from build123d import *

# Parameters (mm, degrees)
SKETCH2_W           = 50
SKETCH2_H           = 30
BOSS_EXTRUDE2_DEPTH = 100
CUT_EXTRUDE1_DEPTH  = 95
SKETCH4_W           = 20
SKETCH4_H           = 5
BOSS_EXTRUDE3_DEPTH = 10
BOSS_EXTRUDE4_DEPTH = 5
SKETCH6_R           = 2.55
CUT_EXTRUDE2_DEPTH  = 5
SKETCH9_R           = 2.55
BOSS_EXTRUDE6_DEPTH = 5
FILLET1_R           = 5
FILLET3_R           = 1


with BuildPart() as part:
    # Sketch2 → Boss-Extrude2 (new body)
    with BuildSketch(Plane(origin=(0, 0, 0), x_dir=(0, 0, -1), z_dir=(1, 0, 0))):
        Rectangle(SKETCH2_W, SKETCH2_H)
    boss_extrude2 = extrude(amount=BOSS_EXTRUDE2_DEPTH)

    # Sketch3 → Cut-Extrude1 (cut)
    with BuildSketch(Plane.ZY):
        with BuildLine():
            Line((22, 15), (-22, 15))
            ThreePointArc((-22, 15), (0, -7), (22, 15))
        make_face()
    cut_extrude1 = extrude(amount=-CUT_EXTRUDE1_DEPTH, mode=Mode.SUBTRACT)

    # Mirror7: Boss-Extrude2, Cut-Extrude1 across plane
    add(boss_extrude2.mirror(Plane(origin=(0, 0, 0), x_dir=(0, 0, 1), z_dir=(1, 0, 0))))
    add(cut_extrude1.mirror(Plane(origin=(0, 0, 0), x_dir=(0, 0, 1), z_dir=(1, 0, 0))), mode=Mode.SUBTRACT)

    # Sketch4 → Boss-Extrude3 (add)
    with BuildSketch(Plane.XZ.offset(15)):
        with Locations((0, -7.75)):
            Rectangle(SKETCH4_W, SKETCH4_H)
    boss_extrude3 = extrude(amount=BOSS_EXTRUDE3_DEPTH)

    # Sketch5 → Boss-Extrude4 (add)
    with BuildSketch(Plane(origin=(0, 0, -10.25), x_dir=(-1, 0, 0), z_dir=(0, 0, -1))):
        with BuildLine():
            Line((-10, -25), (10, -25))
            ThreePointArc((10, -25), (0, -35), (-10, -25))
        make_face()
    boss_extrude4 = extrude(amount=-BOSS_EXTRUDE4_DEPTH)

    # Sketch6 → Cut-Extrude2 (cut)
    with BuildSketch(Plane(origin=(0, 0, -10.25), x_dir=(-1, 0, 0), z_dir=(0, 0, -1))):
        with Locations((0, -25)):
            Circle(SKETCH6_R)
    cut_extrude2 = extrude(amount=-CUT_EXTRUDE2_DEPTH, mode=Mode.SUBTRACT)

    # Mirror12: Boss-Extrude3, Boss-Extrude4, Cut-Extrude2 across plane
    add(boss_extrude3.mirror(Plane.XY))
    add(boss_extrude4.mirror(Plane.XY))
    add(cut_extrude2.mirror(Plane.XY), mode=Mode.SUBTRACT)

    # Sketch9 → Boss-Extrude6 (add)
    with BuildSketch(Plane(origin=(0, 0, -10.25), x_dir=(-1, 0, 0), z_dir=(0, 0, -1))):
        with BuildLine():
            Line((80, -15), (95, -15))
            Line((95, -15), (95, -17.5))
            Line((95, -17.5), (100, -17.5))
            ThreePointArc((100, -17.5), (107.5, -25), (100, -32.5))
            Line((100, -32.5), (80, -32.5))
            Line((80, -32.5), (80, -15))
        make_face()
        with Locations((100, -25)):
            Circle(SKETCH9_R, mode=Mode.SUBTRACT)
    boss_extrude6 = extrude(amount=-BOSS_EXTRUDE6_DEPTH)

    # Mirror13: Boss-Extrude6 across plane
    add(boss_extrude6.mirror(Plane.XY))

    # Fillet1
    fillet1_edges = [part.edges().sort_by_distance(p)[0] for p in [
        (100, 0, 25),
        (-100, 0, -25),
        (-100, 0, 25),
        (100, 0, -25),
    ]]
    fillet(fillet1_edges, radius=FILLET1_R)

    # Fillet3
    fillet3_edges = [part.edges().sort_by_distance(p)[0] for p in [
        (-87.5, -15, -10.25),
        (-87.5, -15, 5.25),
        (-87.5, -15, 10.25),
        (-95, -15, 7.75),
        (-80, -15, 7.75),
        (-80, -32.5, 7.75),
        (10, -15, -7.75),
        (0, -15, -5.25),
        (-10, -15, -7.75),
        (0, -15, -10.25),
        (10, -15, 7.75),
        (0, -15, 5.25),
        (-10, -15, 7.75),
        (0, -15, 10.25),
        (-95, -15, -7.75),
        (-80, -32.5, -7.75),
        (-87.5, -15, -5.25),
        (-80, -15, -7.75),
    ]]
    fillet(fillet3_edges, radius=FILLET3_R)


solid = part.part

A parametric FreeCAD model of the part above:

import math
import FreeCAD as App
import Part
import Sketcher
Q = App.Units.Quantity


def edges_at(feature, points):
    """Names of the edges that pass closest to the given points."""
    edges = feature.Shape.Edges
    near = lambda p: min(range(len(edges)), key=lambda i: edges[i].distToShape(Part.Vertex(*p))[0])
    return sorted({f"Edge{near(p) + 1}" for p in points})


def add_polygon(sketch, points):
    """Adds a closed chain of lines whose ends are joined by coincident constraints."""
    first, n = sketch.GeometryCount, len(points)
    for a, b in zip(points, points[1:] + points[:1]):
        sketch.addGeometry(Part.LineSegment(App.Vector(*a, 0), App.Vector(*b, 0)), False)
    for i in range(n):
        sketch.addConstraint(Sketcher.Constraint("Coincident", first + i, 2, first + (i + 1) % n, 1))

doc = App.newDocument("Part")
body = doc.addObject("PartDesign::Body", "Body")

# Sketch on YZ plane
sketch1 = doc.addObject("Sketcher::SketchObject", "Sketch")
body.addObject(sketch1)
sketch1.AttachmentSupport = (doc.YZ_Plane, [""])
sketch1.MapMode = "FlatFace"
add_polygon(sketch1, [(15, 25), (-15, 25), (-15, -25), (15, -25)])  # lines 0-3
sketch1.addConstraint([
    Sketcher.Constraint("Horizontal", 0),
    Sketcher.Constraint("Vertical", 1),
    Sketcher.Constraint("Horizontal", 2),
    Sketcher.Constraint("Vertical", 3),
    Sketcher.Constraint("Symmetric", 0, 2, 2, 2, -1, 1),
    Sketcher.Constraint("DistanceX", 0, 2, 0, 1, Q("30 mm")),
    Sketcher.Constraint("DistanceY", 1, 2, 1, 1, Q("50 mm")),
])
pad1 = doc.addObject("PartDesign::Pad", "Pad")
body.addObject(pad1)
pad1.Profile = sketch1
pad1.Length = 100

# Sketch on YZ plane
sketch2 = doc.addObject("Sketcher::SketchObject", "Sketch001")
body.addObject(sketch2)
sketch2.AttachmentSupport = (doc.YZ_Plane, [""])
sketch2.MapMode = "FlatFace"
sketch2.addGeometry([
    Part.LineSegment(App.Vector(15, 22, 0), App.Vector(15, -22, 0)),
    Part.ArcOfCircle(Part.Circle(App.Vector(15, 0, 0), App.Vector(0, 0, 1), 22), math.radians(90), math.radians(270)),
], False)
sketch2.addConstraint([
    Sketcher.Constraint("Coincident", 0, 1, 1, 1),
    Sketcher.Constraint("Coincident", 1, 2, 0, 2),
    Sketcher.Constraint("Vertical", 0),
    Sketcher.Constraint("PointOnObject", 1, 3, -1),
    Sketcher.Constraint("Vertical", 1, 3, 0, 1),
    Sketcher.Constraint("Radius", 1, Q("22 mm")),
    Sketcher.Constraint("DistanceX", -1, 1, 1, 3, Q("15 mm")),
])
pocket1 = doc.addObject("PartDesign::Pocket", "Pocket")
body.addObject(pocket1)
pocket1.Profile = sketch2
pocket1.Length = 95
pocket1.Reversed = True
doc.recompute()

mirrored = doc.addObject("PartDesign::Mirrored", "Mirrored")
body.addObject(mirrored)
mirrored.Originals = [pad1, pocket1]
mirrored.MirrorPlane = (doc.YZ_Plane, [""])
body.Tip = mirrored

# Sketch on XZ plane
sketch3 = doc.addObject("Sketcher::SketchObject", "Sketch002")
body.addObject(sketch3)
sketch3.AttachmentSupport = (doc.XZ_Plane, [""])
sketch3.MapMode = "FlatFace"
sketch3.AttachmentOffset = App.Placement(App.Vector(0, 0, 15), App.Rotation())
add_polygon(sketch3, [(-10, -5), (-10, -10), (10, -10), (10, -5)])  # lines 0-3
sketch3.addConstraint([
    Sketcher.Constraint("Vertical", 0),
    Sketcher.Constraint("Horizontal", 1),
    Sketcher.Constraint("Vertical", 2),
    Sketcher.Constraint("Horizontal", 3),
    Sketcher.Constraint("DistanceX", 1, 1, 1, 2, Q("20 mm")),
    Sketcher.Constraint("DistanceY", 0, 2, 0, 1, Q("5 mm")),
    Sketcher.Constraint("DistanceX", 0, 2, -1, 1, Q("10 mm")),
    Sketcher.Constraint("DistanceY", 0, 2, -1, 1, Q("10.25 mm")),
])
pad2 = doc.addObject("PartDesign::Pad", "Pad001")
body.addObject(pad2)
pad2.Profile = sketch3
pad2.Length = 10

# Sketch on XY plane
sketch4 = doc.addObject("Sketcher::SketchObject", "Sketch003")
body.addObject(sketch4)
sketch4.AttachmentSupport = (doc.XY_Plane, [""])
sketch4.MapMode = "FlatFace"
sketch4.AttachmentOffset = App.Placement(App.Vector(0, 0, -10.25), App.Rotation())
sketch4.addGeometry([
    Part.LineSegment(App.Vector(-10, -25, 0), App.Vector(10, -25, 0)),
    Part.ArcOfCircle(Part.Circle(App.Vector(0, -25, 0), App.Vector(0, 0, 1), 10), math.radians(180), math.radians(360)),
], False)
sketch4.addConstraint([
    Sketcher.Constraint("Coincident", 0, 1, 1, 1),
    Sketcher.Constraint("Coincident", 1, 2, 0, 2),
    Sketcher.Constraint("Horizontal", 0),
    Sketcher.Constraint("PointOnObject", 1, 3, -2),
    Sketcher.Constraint("Horizontal", 1, 3, 0, 1),
    Sketcher.Constraint("Radius", 1, Q("10 mm")),
    Sketcher.Constraint("DistanceY", 1, 3, -1, 1, Q("25 mm")),
])
pad3 = doc.addObject("PartDesign::Pad", "Pad002")
body.addObject(pad3)
pad3.Profile = sketch4
pad3.Length = 5

# Sketch on XY plane
sketch5 = doc.addObject("Sketcher::SketchObject", "Sketch004")
body.addObject(sketch5)
sketch5.AttachmentSupport = (doc.XY_Plane, [""])
sketch5.MapMode = "FlatFace"
sketch5.AttachmentOffset = App.Placement(App.Vector(0, 0, -10.25), App.Rotation())
sketch5.addGeometry(Part.Circle(App.Vector(0, -25, 0), App.Vector(0, 0, 1), 2.5), False)
sketch5.addConstraint([
    Sketcher.Constraint("PointOnObject", 0, 3, -2),
    Sketcher.Constraint("Diameter", 0, Q("5.1 mm")),
    Sketcher.Constraint("DistanceY", 0, 3, -1, 1, Q("25 mm")),
])
pocket2 = doc.addObject("PartDesign::Pocket", "Pocket001")
body.addObject(pocket2)
pocket2.Profile = sketch5
pocket2.Length = 5
pocket2.Reversed = True
doc.recompute()

mirrored2 = doc.addObject("PartDesign::Mirrored", "Mirrored001")
body.addObject(mirrored2)
mirrored2.Originals = [pad2, pad3, pocket2]
mirrored2.MirrorPlane = (doc.XY_Plane, [""])
body.Tip = mirrored2

# Sketch on XY plane
sketch6 = doc.addObject("Sketcher::SketchObject", "Sketch005")
body.addObject(sketch6)
sketch6.AttachmentSupport = (doc.XY_Plane, [""])
sketch6.MapMode = "FlatFace"
sketch6.AttachmentOffset = App.Placement(App.Vector(0, 0, -10.25), App.Rotation())
sketch6.addGeometry([
    Part.LineSegment(App.Vector(-95, -15, 0), App.Vector(-80, -15, 0)),  # 0
    Part.LineSegment(App.Vector(-80, -15, 0), App.Vector(-80, -32.5, 0)),  # 1
    Part.LineSegment(App.Vector(-80, -32.5, 0), App.Vector(-100, -32.5, 0)),  # 2
    Part.ArcOfCircle(Part.Circle(App.Vector(-100, -25, 0), App.Vector(0, 0, 1), 7.5), math.radians(90), math.radians(270)),  # 3
    Part.LineSegment(App.Vector(-100, -17.5, 0), App.Vector(-95, -17.5, 0)),  # 4
    Part.LineSegment(App.Vector(-95, -17.5, 0), App.Vector(-95, -15, 0)),  # 5
    Part.Circle(App.Vector(-100, -25, 0), App.Vector(0, 0, 1), 2.5),  # 6
], False)
sketch6.addConstraint([
    Sketcher.Constraint("Coincident", 0, 2, 1, 1),
    Sketcher.Constraint("Coincident", 1, 2, 2, 1),
    Sketcher.Constraint("Tangent", 2, 2, 3, 2),
    Sketcher.Constraint("Tangent", 3, 1, 4, 1),
    Sketcher.Constraint("Coincident", 4, 2, 5, 1),
    Sketcher.Constraint("Coincident", 5, 2, 0, 1),
    Sketcher.Constraint("Horizontal", 0),
    Sketcher.Constraint("Vertical", 1),
    Sketcher.Constraint("Horizontal", 2),
    Sketcher.Constraint("Horizontal", 4),
    Sketcher.Constraint("Vertical", 5),
    Sketcher.Constraint("Coincident", 6, 3, 3, 3),
    Sketcher.Constraint("Diameter", 6, Q("5.1 mm")),
    Sketcher.Constraint("Radius", 3, Q("7.5 mm")),
    Sketcher.Constraint("DistanceX", 0, 1, 0, 2, Q("15 mm")),
    Sketcher.Constraint("DistanceX", 2, 2, 2, 1, Q("20 mm")),
    Sketcher.Constraint("DistanceY", 1, 2, 1, 1, Q("17.5 mm")),
    Sketcher.Constraint("DistanceX", 3, 3, -1, 1, Q("100 mm")),
    Sketcher.Constraint("DistanceY", 3, 3, -1, 1, Q("25 mm")),
])
pad4 = doc.addObject("PartDesign::Pad", "Pad003")
body.addObject(pad4)
pad4.Profile = sketch6
pad4.Length = 5
doc.recompute()

mirrored3 = doc.addObject("PartDesign::Mirrored", "Mirrored002")
body.addObject(mirrored3)
mirrored3.Originals = [pad4]
mirrored3.MirrorPlane = (doc.XY_Plane, [""])
body.Tip = mirrored3
doc.recompute()

fillet = doc.addObject("PartDesign::Fillet", "Fillet")
body.addObject(fillet)
fillet.Base = (mirrored3, edges_at(mirrored3, [
    (100, 0, 25),
    (-100, 0, -25),
    (-100, 0, 25),
    (100, 0, -25),
]))
fillet.Radius = 5
doc.recompute()

fillet2 = doc.addObject("PartDesign::Fillet", "Fillet001")
body.addObject(fillet2)
fillet2.Base = (fillet, edges_at(fillet, [
    (-87.5, -15, -10.25),
    (-87.5, -15, 5.25),
    (-87.5, -15, 10.25),
    (-95, -15, 7.75),
    (-80, -15, 7.75),
    (-80, -32.5, 7.75),
    (10, -15, -7.75),
    (0, -15, -5.25),
    (-10, -15, -7.75),
    (0, -15, -10.25),
    (10, -15, 7.75),
    (0, -15, 5.25),
    (-10, -15, 7.75),
    (0, -15, 10.25),
    (-95, -15, -7.75),
    (-80, -32.5, -7.75),
    (-87.5, -15, -5.25),
    (-80, -15, -7.75),
]))
fillet2.Radius = 1

doc.recompute()
